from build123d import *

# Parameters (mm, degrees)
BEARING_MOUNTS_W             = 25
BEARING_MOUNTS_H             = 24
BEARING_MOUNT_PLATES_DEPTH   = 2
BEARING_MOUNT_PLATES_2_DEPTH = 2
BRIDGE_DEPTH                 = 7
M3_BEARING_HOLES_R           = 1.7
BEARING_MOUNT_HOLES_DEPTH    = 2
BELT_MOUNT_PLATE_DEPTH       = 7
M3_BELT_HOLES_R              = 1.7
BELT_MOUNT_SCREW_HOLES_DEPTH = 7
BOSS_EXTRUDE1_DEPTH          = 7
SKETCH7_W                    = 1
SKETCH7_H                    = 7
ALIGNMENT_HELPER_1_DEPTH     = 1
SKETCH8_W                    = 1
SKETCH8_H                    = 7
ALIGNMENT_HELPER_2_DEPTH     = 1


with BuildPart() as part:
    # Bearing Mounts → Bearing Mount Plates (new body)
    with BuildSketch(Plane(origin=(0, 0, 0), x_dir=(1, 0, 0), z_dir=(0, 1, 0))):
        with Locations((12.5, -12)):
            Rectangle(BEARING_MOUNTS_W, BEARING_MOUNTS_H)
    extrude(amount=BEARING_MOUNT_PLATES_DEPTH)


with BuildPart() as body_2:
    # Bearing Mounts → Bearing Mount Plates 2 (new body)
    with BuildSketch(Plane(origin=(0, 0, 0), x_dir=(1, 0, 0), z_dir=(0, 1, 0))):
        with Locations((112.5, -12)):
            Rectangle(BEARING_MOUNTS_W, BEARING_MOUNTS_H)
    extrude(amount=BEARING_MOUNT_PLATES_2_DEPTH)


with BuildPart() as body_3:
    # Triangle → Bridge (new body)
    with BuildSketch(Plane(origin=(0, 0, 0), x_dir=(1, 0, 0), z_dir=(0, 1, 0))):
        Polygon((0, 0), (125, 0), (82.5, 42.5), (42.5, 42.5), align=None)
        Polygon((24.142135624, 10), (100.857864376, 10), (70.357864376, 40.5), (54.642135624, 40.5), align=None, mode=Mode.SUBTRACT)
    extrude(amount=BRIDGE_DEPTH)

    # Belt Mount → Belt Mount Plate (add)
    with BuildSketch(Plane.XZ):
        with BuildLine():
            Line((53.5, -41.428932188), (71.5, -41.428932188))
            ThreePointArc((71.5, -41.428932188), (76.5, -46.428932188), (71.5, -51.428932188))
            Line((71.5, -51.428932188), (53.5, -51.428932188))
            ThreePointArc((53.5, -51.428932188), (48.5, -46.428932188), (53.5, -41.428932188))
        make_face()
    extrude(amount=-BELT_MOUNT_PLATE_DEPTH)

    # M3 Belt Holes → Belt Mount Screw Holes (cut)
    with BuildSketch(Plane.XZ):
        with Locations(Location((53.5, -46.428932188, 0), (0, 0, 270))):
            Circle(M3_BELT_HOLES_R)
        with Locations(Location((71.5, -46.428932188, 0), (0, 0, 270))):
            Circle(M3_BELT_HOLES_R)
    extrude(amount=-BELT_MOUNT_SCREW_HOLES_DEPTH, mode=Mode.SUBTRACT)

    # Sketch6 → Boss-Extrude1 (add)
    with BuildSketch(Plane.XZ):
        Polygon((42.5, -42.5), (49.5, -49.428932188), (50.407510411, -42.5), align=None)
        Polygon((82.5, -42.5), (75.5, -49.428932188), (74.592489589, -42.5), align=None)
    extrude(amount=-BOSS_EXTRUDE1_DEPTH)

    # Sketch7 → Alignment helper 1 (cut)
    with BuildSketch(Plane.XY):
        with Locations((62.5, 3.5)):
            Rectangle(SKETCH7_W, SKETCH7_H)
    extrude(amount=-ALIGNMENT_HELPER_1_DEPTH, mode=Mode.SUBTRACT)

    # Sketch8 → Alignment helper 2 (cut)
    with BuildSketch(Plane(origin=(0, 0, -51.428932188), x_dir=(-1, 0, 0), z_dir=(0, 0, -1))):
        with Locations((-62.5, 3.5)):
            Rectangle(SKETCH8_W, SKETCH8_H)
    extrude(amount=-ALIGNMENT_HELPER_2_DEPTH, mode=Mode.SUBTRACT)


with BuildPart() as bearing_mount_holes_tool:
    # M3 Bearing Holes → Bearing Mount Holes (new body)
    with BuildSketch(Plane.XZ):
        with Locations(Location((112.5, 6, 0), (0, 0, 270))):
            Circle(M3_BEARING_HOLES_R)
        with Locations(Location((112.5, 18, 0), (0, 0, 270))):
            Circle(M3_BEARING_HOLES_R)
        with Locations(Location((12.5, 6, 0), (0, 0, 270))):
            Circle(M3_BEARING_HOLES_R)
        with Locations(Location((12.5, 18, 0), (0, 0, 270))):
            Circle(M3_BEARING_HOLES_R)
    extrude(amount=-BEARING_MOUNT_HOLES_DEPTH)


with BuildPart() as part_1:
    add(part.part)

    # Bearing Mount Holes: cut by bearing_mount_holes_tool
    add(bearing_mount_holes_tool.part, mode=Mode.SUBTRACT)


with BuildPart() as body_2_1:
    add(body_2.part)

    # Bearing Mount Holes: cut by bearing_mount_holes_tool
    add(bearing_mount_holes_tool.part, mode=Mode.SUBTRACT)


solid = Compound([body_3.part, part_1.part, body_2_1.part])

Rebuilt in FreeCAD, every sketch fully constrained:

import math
import FreeCAD as App
import Part
import Sketcher

V = App.Vector
Q = App.Units.Quantity

doc = App.newDocument("Part")
body = doc.addObject("PartDesign::Body", "Body")

# Sketch on XZ plane
sketch1 = body.newObject("Sketcher::SketchObject", "Sketch")
sketch1.AttachmentSupport = (doc.getObject("XZ_Plane"), [""])
sketch1.MapMode = "FlatFace"
sketch1.addGeometry([
    Part.LineSegment(V(0, 0, 0), V(0, 24, 0)),
    Part.LineSegment(V(0, 24, 0), V(25, 24, 0)),
    Part.LineSegment(V(25, 24, 0), V(25, 0, 0)),
    Part.LineSegment(V(25, 0, 0), V(0, 0, 0)),
], False)
sketch1.addConstraint([
    Sketcher.Constraint("Coincident", 0, 2, 1, 1),
    Sketcher.Constraint("Coincident", 1, 2, 2, 1),
    Sketcher.Constraint("Coincident", 2, 2, 3, 1),
    Sketcher.Constraint("Coincident", 3, 2, 0, 1),
    Sketcher.Constraint("Vertical", 0),
    Sketcher.Constraint("Horizontal", 1),
    Sketcher.Constraint("Vertical", 2),
    Sketcher.Constraint("Horizontal", 3),
    Sketcher.Constraint("Coincident", 3, 2, -1, 1),
    Sketcher.Constraint("DistanceX", 1, 1, 1, 2, Q("25 mm")),
    Sketcher.Constraint("DistanceY", 0, 1, 0, 2, Q("24 mm")),
])
pad1 = body.newObject("PartDesign::Pad", "Pad")
pad1.Profile = sketch1
pad1.Length = 2
pad1.Reversed = True
body2 = doc.addObject("PartDesign::Body", "Body001")

# Sketch on XZ plane
sketch2 = body2.newObject("Sketcher::SketchObject", "Sketch001")
sketch2.AttachmentSupport = (doc.getObject("XZ_Plane001"), [""])
sketch2.MapMode = "FlatFace"
sketch2.addGeometry([
    Part.LineSegment(V(100, 0, 0), V(100, 24, 0)),
    Part.LineSegment(V(100, 24, 0), V(125, 24, 0)),
    Part.LineSegment(V(125, 24, 0), V(125, 0, 0)),
    Part.LineSegment(V(125, 0, 0), V(100, 0, 0)),
], False)
sketch2.addConstraint([
    Sketcher.Constraint("Coincident", 0, 2, 1, 1),
    Sketcher.Constraint("Coincident", 1, 2, 2, 1),
    Sketcher.Constraint("Coincident", 2, 2, 3, 1),
    Sketcher.Constraint("Coincident", 3, 2, 0, 1),
    Sketcher.Constraint("Vertical", 0),
    Sketcher.Constraint("Horizontal", 1),
    Sketcher.Constraint("Vertical", 2),
    Sketcher.Constraint("Horizontal", 3),
    Sketcher.Constraint("PointOnObject", 2, 2, -1),
    Sketcher.Constraint("DistanceX", 1, 1, 1, 2, Q("25 mm")),
    Sketcher.Constraint("DistanceY", 0, 1, 0, 2, Q("24 mm")),
    Sketcher.Constraint("DistanceX", -1, 1, 0, 2, Q("100 mm")),
])
pad2 = body2.newObject("PartDesign::Pad", "Pad001")
pad2.Profile = sketch2
pad2.Length = 2
pad2.Reversed = True
body3 = doc.addObject("PartDesign::Body", "Body002")

# Sketch on XZ plane
sketch3 = body3.newObject("Sketcher::SketchObject", "Sketch002")
sketch3.AttachmentSupport = (doc.getObject("XZ_Plane002"), [""])
sketch3.MapMode = "FlatFace"
sketch3.addGeometry([
    Part.LineSegment(V(0, 0, 0), V(125, 0, 0)),  # 0
    Part.LineSegment(V(125, 0, 0), V(82, -42, 0)),  # 1
    Part.LineSegment(V(82, -42, 0), V(42, -42, 0)),  # 2
    Part.LineSegment(V(42, -42, 0), V(0, 0, 0)),  # 3
    Part.LineSegment(V(101, -10, 0), V(24, -10, 0)),  # 4
    Part.LineSegment(V(24, -10, 0), V(55, -40, 0)),  # 5
    Part.LineSegment(V(55, -40, 0), V(70, -40, 0)),  # 6
    Part.LineSegment(V(70, -40, 0), V(101, -10, 0)),  # 7
], False)
sketch3.addConstraint([
    Sketcher.Constraint("Coincident", 0, 2, 1, 1),
    Sketcher.Constraint("Coincident", 1, 2, 2, 1),
    Sketcher.Constraint("Coincident", 2, 2, 3, 1),
    Sketcher.Constraint("Coincident", 3, 2, 0, 1),
    Sketcher.Constraint("Coincident", 4, 2, 5, 1),
    Sketcher.Constraint("Coincident", 5, 2, 6, 1),
    Sketcher.Constraint("Coincident", 6, 2, 7, 1),
    Sketcher.Constraint("Coincident", 7, 2, 4, 1),
    Sketcher.Constraint("Horizontal", 0),
    Sketcher.Constraint("Horizontal", 2),
    Sketcher.Constraint("Horizontal", 4),
    Sketcher.Constraint("Horizontal", 6),
    Sketcher.Constraint("Coincident", 3, 2, -1, 1),
    Sketcher.Constraint("Perpendicular", 1, 3),
    Sketcher.Constraint("Parallel", 3, 5),
    Sketcher.Constraint("Perpendicular", 5, 7),
    Sketcher.Constraint("Equal", 1, 3),
    Sketcher.Constraint("DistanceX", 0, 1, 0, 2, Q("125 mm")),
    Sketcher.Constraint("DistanceX", 2, 2, 2, 1, Q("40 mm")),
    Sketcher.Constraint("DistanceY", 4, 2, -1, 1, Q("10 mm")),
    Sketcher.Constraint("DistanceY", 2, 2, 5, 2, Q("2 mm")),
    Sketcher.Constraint("DistanceX", 4, 2, 4, 1, Q("76.715729 mm")),
    Sketcher.Constraint("DistanceX", -1, 1, 4, 2, Q("24.142136 mm")),
])
pad3 = body3.newObject("PartDesign::Pad", "Pad002")
pad3.Profile = sketch3
pad3.Length = 7
pad3.Reversed = True

# Sketch on XZ plane
sketch4 = body3.newObject("Sketcher::SketchObject", "Sketch003")
sketch4.AttachmentSupport = (doc.getObject("XZ_Plane002"), [""])
sketch4.MapMode = "FlatFace"
sketch4.addGeometry([
    Part.LineSegment(V(72, -41, 0), V(54, -41, 0)),
    Part.ArcOfCircle(Part.Circle(V(54, -46, 0), V(0, 0, 1), 5), math.radians(90), math.radians(270)),
    Part.LineSegment(V(54, -51, 0), V(72, -51, 0)),
    Part.ArcOfCircle(Part.Circle(V(72, -46, 0), V(0, 0, 1), 5), math.radians(-90), math.radians(90)),
], False)
sketch4.addConstraint([
    Sketcher.Constraint("Tangent", 0, 2, 1, 1),
    Sketcher.Constraint("Tangent", 1, 2, 2, 1),
    Sketcher.Constraint("Tangent", 2, 2, 3, 1),
    Sketcher.Constraint("Tangent", 3, 2, 0, 1),
    Sketcher.Constraint("Horizontal", 0),
    Sketcher.Constraint("Horizontal", 2),
    Sketcher.Constraint("Radius", 1, Q("5 mm")),
    Sketcher.Constraint("DistanceX", 0, 2, 0, 1, Q("18 mm")),
    Sketcher.Constraint("DistanceX", -1, 1, 1, 3, Q("53.5 mm")),
    Sketcher.Constraint("DistanceY", 1, 3, -1, 1, Q("46.428932 mm")),
])
pad4 = body3.newObject("PartDesign::Pad", "Pad003")
pad4.Profile = sketch4
pad4.Length = 7
pad4.Reversed = True

# Sketch on XZ plane
sketch5 = body3.newObject("Sketcher::SketchObject", "Sketch004")
sketch5.AttachmentSupport = (doc.getObject("XZ_Plane002"), [""])
sketch5.MapMode = "FlatFace"
sketch5.addGeometry([
    Part.Circle(V(53.5, -46.4, 0), V(0, 0, 1), 1.7),
    Part.Circle(V(71.5, -46.4, 0), V(0, 0, 1), 1.7),
], False)
sketch5.addConstraint([
    Sketcher.Constraint("Equal", 0, 1),
    Sketcher.Constraint("Horizontal", 0, 3, 1, 3),
    Sketcher.Constraint("Diameter", 0, Q("3.4 mm")),
    Sketcher.Constraint("DistanceX", 0, 3, 1, 3, Q("18 mm")),
    Sketcher.Constraint("DistanceX", -1, 1, 0, 3, Q("53.5 mm")),
    Sketcher.Constraint("DistanceY", 0, 3, -1, 1, Q("46.428932 mm")),
])
pocket1 = body3.newObject("PartDesign::Pocket", "Pocket")
pocket1.Profile = sketch5
pocket1.Length = 7

# Sketch on XZ plane
sketch6 = body3.newObject("Sketcher::SketchObject", "Sketch005")
sketch6.AttachmentSupport = (doc.getObject("XZ_Plane002"), [""])
sketch6.MapMode = "FlatFace"
sketch6.addGeometry([
    Part.LineSegment(V(42, -42, 0), V(50, -49, 0)),  # 0
    Part.LineSegment(V(50, -49, 0), V(50, -42, 0)),  # 1
    Part.LineSegment(V(50, -42, 0), V(42, -42, 0)),  # 2
    Part.LineSegment(V(76, -49, 0), V(82, -42, 0)),  # 3
    Part.LineSegment(V(82, -42, 0), V(75, -42, 0)),  # 4
    Part.LineSegment(V(75, -42, 0), V(76, -49, 0)),  # 5
], False)
sketch6.addConstraint([
    Sketcher.Constraint("Coincident", 0, 2, 1, 1),
    Sketcher.Constraint("Coincident", 1, 2, 2, 1),
    Sketcher.Constraint("Coincident", 2, 2, 0, 1),
    Sketcher.Constraint("Coincident", 3, 2, 4, 1),
    Sketcher.Constraint("Coincident", 4, 2, 5, 1),
    Sketcher.Constraint("Coincident", 5, 2, 3, 1),
    Sketcher.Constraint("Horizontal", 2),
    Sketcher.Constraint("Horizontal", 4),
    Sketcher.Constraint("Horizontal", 2, 2, 3, 2),
    Sketcher.Constraint("Horizontal", 0, 2, 5, 2),
    Sketcher.Constraint("Equal", 2, 4),
    Sketcher.Constraint("Equal", 0, 3),
    Sketcher.Constraint("DistanceX", 2, 2, 0, 2, Q("7 mm")),
    Sketcher.Constraint("DistanceX", 0, 2, 3, 2, Q("33 mm")),
    Sketcher.Constraint("DistanceX", -1, 1, 0, 2, Q("49.5 mm")),
    Sketcher.Constraint("DistanceY", 1, 2, -1, 1, Q("42.5 mm")),
    Sketcher.Constraint("DistanceX", 2, 2, 2, 1, Q("7.90751 mm")),
    Sketcher.Constraint("Distance", 0, Q("9.849371 mm")),
])
pad5 = body3.newObject("PartDesign::Pad", "Pad004")
pad5.Profile = sketch6
pad5.Length = 7
pad5.Reversed = True

# Sketch on XY plane
sketch7 = body3.newObject("Sketcher::SketchObject", "Sketch006")
sketch7.AttachmentSupport = (doc.getObject("XY_Plane002"), [""])
sketch7.MapMode = "FlatFace"
sketch7.addGeometry([
    Part.LineSegment(V(62, 7, 0), V(62, 0, 0)),
    Part.LineSegment(V(62, 0, 0), V(63, 0, 0)),
    Part.LineSegment(V(63, 0, 0), V(63, 7, 0)),
    Part.LineSegment(V(63, 7, 0), V(62, 7, 0)),
], False)
sketch7.addConstraint([
    Sketcher.Constraint("Coincident", 0, 2, 1, 1),
    Sketcher.Constraint("Coincident", 1, 2, 2, 1),
    Sketcher.Constraint("Coincident", 2, 2, 3, 1),
    Sketcher.Constraint("Coincident", 3, 2, 0, 1),
    Sketcher.Constraint("Vertical", 0),
    Sketcher.Constraint("Horizontal", 1),
    Sketcher.Constraint("Vertical", 2),
    Sketcher.Constraint("Horizontal", 3),
    Sketcher.Constraint("PointOnObject", 0, 2, -1),
    Sketcher.Constraint("DistanceX", 1, 1, 1, 2, Q("1 mm")),
    Sketcher.Constraint("DistanceY", 0, 2, 0, 1, Q("7 mm")),
    Sketcher.Constraint("DistanceX", -1, 1, 0, 2, Q("62 mm")),
])
pocket2 = body3.newObject("PartDesign::Pocket", "Pocket001")
pocket2.Profile = sketch7
pocket2.Length = 1

# Sketch on XY plane
sketch8 = body3.newObject("Sketcher::SketchObject", "Sketch007")
sketch8.AttachmentSupport = (doc.getObject("XY_Plane002"), [""])
sketch8.MapMode = "FlatFace"
sketch8.AttachmentOffset = App.Placement(V(0, 0, -51.428932), App.Rotation())
sketch8.addGeometry([
    Part.LineSegment(V(63, 7, 0), V(63, 0, 0)),
    Part.LineSegment(V(63, 0, 0), V(62, 0, 0)),
    Part.LineSegment(V(62, 0, 0), V(62, 7, 0)),
    Part.LineSegment(V(62, 7, 0), V(63, 7, 0)),
], False)
sketch8.addConstraint([
    Sketcher.Constraint("Coincident", 0, 2, 1, 1),
    Sketcher.Constraint("Coincident", 1, 2, 2, 1),
    Sketcher.Constraint("Coincident", 2, 2, 3, 1),
    Sketcher.Constraint("Coincident", 3, 2, 0, 1),
    Sketcher.Constraint("Vertical", 0),
    Sketcher.Constraint("Horizontal", 1),
    Sketcher.Constraint("Vertical", 2),
    Sketcher.Constraint("Horizontal", 3),
    Sketcher.Constraint("PointOnObject", 0, 2, -1),
    Sketcher.Constraint("DistanceX", 1, 2, 1, 1, Q("1 mm")),
    Sketcher.Constraint("DistanceY", 0, 2, 0, 1, Q("7 mm")),
    Sketcher.Constraint("DistanceX", -1, 1, 0, 2, Q("63 mm")),
])
pocket3 = body3.newObject("PartDesign::Pocket", "Pocket002")
pocket3.Profile = sketch8
pocket3.Length = 1
pocket3.Reversed = True
body4 = doc.addObject("PartDesign::Body", "Body003")
body4.AllowCompound = True

# Sketch on XZ plane
sketch9 = body4.newObject("Sketcher::SketchObject", "Sketch008")
sketch9.AttachmentSupport = (doc.getObject("XZ_Plane003"), [""])
sketch9.MapMode = "FlatFace"
sketch9.addGeometry([
    Part.Circle(V(112.5, 6, 0), V(0, 0, 1), 1.7),
    Part.Circle(V(112.5, 18, 0), V(0, 0, 1), 1.7),
    Part.Circle(V(12.5, 6, 0), V(0, 0, 1), 1.7),
    Part.Circle(V(12.5, 18, 0), V(0, 0, 1), 1.7),
], False)
sketch9.addConstraint([
    Sketcher.Constraint("Equal", 0, 1),
    Sketcher.Constraint("Equal", 1, 2),
    Sketcher.Constraint("Equal", 2, 3),
    Sketcher.Constraint("Horizontal", 0, 3, 2, 3),
    Sketcher.Constraint("Horizontal", 1, 3, 3, 3),
    Sketcher.Constraint("Vertical", 0, 3, 1, 3),
    Sketcher.Constraint("Vertical", 2, 3, 3, 3),
    Sketcher.Constraint("Diameter", 0, Q("3.4 mm")),
    Sketcher.Constraint("DistanceY", -1, 1, 0, 3, Q("6 mm")),
    Sketcher.Constraint("DistanceY", -1, 1, 1, 3, Q("18 mm")),
    Sketcher.Constraint("DistanceX", 2, 3, 0, 3, Q("100 mm")),
    Sketcher.Constraint("DistanceX", -1, 1, 0, 3, Q("112.5 mm")),
])
pad6 = body4.newObject("PartDesign::Pad", "Pad005")
pad6.Profile = sketch9
pad6.Length = 2
pad6.Reversed = True
doc.recompute()

body5 = doc.addObject("PartDesign::Body", "Body004")
body5.BaseFeature = body4
boolean = body.newObject("PartDesign::Boolean", "Boolean")
boolean.Type = "Cut"
boolean.addObjects([body5])
doc.recompute()

boolean2 = body2.newObject("PartDesign::Boolean", "Boolean001")
boolean2.Type = "Cut"
boolean2.addObjects([body4])

doc.recompute()
